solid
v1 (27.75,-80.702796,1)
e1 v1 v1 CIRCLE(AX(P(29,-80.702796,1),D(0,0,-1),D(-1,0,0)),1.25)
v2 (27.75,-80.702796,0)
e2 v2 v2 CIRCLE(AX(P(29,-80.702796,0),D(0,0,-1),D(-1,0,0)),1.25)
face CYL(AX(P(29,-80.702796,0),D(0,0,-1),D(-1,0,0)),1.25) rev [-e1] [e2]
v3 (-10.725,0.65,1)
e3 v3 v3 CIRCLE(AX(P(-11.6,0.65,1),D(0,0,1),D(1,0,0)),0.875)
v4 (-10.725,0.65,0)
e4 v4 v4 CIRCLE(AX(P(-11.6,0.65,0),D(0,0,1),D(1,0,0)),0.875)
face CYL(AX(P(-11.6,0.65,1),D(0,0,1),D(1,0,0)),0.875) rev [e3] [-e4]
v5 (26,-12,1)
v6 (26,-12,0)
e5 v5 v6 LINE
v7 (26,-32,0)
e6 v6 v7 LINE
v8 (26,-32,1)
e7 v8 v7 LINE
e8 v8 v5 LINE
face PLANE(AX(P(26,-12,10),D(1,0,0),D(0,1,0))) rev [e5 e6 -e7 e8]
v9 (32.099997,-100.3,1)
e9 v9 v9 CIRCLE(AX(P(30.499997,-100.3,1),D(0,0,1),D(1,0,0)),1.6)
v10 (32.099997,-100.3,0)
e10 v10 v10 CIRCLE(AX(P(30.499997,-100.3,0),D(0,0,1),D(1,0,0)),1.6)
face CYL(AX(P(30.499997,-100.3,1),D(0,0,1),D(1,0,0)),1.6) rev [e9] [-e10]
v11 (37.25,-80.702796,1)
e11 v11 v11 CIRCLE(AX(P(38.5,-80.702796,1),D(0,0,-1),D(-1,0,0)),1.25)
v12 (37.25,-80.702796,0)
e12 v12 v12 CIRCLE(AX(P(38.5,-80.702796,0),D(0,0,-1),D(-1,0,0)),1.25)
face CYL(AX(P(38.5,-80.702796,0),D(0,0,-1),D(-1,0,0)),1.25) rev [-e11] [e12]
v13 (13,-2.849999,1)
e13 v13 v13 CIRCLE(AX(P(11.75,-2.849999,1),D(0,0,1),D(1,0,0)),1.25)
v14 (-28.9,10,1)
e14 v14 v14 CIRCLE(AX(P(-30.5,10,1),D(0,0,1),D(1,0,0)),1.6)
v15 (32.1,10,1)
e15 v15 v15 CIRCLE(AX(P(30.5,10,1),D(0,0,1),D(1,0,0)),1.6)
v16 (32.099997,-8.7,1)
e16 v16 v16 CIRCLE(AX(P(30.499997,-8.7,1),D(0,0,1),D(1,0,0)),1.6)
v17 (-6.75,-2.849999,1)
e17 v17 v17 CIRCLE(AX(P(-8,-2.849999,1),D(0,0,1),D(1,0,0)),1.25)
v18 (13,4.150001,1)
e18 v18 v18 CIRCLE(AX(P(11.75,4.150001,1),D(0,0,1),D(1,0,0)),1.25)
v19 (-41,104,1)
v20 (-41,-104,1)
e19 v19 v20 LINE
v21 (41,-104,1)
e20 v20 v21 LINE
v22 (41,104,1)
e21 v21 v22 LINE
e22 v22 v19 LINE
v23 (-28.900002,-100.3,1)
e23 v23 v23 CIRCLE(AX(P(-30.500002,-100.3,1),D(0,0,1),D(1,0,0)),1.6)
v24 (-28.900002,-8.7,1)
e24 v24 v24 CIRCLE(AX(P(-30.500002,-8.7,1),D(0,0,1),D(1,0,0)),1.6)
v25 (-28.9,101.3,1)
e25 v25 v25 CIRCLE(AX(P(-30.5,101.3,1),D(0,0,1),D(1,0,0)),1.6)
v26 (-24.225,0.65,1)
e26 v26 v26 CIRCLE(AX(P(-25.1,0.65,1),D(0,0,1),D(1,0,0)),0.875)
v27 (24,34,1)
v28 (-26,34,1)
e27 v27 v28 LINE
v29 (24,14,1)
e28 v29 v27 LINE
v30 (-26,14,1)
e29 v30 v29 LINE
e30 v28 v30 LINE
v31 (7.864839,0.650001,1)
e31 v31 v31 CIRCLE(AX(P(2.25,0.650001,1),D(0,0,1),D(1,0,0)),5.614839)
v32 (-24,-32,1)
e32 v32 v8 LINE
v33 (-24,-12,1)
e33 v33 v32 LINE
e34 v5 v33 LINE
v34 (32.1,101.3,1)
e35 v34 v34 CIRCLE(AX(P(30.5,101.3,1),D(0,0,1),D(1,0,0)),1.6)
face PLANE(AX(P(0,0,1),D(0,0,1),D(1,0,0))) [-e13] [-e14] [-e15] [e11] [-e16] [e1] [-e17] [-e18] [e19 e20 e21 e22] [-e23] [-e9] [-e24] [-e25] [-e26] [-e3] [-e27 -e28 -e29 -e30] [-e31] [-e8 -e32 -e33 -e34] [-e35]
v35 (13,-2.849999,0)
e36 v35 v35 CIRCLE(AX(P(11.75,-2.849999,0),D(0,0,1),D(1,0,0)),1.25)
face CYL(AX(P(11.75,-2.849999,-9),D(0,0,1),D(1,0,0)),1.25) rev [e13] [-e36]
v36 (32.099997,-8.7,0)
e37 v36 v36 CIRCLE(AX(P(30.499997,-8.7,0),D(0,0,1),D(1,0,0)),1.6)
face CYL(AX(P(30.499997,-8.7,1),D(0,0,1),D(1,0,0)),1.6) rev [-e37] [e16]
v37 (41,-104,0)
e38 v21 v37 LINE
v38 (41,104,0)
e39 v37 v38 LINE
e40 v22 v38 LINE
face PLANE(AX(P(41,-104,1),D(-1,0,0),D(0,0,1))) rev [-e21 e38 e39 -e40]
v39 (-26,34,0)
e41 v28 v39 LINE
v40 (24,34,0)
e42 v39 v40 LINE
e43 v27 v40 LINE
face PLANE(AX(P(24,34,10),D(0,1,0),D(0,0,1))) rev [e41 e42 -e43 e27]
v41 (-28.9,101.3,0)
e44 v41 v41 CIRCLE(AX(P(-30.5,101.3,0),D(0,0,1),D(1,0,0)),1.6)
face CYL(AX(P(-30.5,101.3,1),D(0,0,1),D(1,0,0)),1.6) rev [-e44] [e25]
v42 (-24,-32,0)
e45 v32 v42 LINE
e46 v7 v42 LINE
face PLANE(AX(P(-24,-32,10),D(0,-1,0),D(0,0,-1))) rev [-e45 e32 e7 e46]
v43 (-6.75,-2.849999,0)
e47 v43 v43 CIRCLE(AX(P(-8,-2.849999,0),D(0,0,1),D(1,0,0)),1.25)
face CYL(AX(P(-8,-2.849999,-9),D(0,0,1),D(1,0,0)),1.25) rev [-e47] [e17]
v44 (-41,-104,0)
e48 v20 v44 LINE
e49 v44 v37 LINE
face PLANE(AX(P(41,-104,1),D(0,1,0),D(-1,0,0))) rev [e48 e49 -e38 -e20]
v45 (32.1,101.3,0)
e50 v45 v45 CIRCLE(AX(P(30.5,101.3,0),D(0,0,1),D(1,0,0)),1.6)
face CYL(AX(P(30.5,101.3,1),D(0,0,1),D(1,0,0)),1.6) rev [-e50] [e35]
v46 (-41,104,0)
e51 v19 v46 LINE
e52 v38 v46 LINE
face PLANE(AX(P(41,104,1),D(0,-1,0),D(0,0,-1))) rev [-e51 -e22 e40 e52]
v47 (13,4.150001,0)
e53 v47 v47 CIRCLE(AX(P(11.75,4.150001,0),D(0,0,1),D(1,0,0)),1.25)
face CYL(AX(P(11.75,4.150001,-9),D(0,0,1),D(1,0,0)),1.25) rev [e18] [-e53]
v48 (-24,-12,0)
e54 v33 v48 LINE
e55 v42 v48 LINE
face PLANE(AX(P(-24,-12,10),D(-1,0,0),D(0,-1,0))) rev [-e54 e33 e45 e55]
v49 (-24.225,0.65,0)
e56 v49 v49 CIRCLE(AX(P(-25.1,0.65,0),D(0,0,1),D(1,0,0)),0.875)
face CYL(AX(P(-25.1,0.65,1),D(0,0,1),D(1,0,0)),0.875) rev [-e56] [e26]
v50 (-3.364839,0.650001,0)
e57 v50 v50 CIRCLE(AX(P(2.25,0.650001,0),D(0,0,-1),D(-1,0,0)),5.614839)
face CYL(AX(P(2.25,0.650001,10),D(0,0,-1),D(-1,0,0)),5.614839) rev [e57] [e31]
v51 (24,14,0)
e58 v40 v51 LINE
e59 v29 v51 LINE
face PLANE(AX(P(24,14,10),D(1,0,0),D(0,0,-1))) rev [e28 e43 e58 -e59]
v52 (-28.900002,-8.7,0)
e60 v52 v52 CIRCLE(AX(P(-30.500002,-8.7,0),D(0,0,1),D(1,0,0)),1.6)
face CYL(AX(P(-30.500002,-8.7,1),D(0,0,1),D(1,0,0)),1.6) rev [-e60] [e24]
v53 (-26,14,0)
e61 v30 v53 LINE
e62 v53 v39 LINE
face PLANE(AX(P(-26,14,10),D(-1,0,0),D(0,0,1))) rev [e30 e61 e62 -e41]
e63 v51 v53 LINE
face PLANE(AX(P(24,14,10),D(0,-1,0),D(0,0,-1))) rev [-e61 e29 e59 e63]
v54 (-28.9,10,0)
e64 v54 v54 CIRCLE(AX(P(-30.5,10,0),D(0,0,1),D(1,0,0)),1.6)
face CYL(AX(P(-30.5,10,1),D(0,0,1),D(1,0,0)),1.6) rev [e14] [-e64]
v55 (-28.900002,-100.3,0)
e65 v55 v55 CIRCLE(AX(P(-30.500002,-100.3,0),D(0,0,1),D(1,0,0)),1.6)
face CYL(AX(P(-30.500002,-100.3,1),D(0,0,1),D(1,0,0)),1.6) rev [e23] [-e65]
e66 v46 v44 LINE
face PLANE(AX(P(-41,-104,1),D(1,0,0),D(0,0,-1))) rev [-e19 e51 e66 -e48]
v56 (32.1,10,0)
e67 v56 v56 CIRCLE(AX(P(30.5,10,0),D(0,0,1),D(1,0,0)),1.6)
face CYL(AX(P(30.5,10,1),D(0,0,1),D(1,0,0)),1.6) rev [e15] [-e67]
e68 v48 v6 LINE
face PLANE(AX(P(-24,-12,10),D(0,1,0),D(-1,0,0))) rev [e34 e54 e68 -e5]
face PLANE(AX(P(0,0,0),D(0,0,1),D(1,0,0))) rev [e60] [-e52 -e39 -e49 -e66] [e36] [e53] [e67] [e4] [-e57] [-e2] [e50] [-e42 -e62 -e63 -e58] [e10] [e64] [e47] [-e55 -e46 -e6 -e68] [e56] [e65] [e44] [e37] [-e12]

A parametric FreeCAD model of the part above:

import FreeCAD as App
import Part
import Sketcher
from FreeCAD import Vector


def add_polygon(sketch, points):
    """Adds a closed chain of lines whose ends are joined by coincident constraints."""
    first, n = sketch.GeometryCount, len(points)
    for a, b in zip(points, points[1:] + points[:1]):
        sketch.addGeometry(Part.LineSegment(App.Vector(*a, 0), App.Vector(*b, 0)), False)
    for i in range(n):
        sketch.addConstraint(Sketcher.Constraint("Coincident", first + i, 2, first + (i + 1) % n, 1))

doc = App.newDocument("Part")
body = doc.addObject("PartDesign::Body", "Body")

sketch1 = body.newObject("Sketcher::SketchObject", "Sketch")
sketch1.AttachmentSupport = (doc.getObject("XY_Plane"), [""])
sketch1.MapMode = "FlatFace"
add_polygon(sketch1, [(-41, 104), (-41, -104), (41, -104), (41, 104)])
sketch1.addConstraint([
    Sketcher.Constraint("Vertical", 0),
    Sketcher.Constraint("Horizontal", 1),
    Sketcher.Constraint("Vertical", 2),
    Sketcher.Constraint("Horizontal", 3),
    Sketcher.Constraint("Symmetric", 0, 2, 2, 2, -1, 1),
    Sketcher.Constraint("DistanceX", 1, 1, 1, 2, 82.0),
    Sketcher.Constraint("DistanceY", 0, 2, 0, 1, 208.0),
])
pad1 = body.newObject("PartDesign::Pad", "Pad")
pad1.Profile = sketch1
pad1.Length = 1

sketch2 = body.newObject("Sketcher::SketchObject", "Sketch001")
sketch2.AttachmentSupport = (doc.getObject("XY_Plane"), [""])
sketch2.MapMode = "FlatFace"
sketch2.AttachmentOffset = App.Placement(Vector(0, 0, 1), App.Rotation())
sketch2.addGeometry([
    Part.Circle(Vector(-30.5, 10, 0), Vector(0, 0, 1), 1.6),
    Part.Circle(Vector(30.5, 10, 0), Vector(0, 0, 1), 1.6),
    Part.Circle(Vector(30.499997, -100.3, 0), Vector(0, 0, 1), 1.6),
    Part.Circle(Vector(-30.500002, -100.3, 0), Vector(0, 0, 1), 1.6),
    Part.Circle(Vector(-30.5, 101.3, 0), Vector(0, 0, 1), 1.6),
    Part.Circle(Vector(30.5, 101.3, 0), Vector(0, 0, 1), 1.6),
    Part.Circle(Vector(30.499997, -8.7, 0), Vector(0, 0, 1), 1.6),
    Part.Circle(Vector(30.644997, -118.559803, 0), Vector(0, 0, 1), 1.6),
    Part.Circle(Vector(-30.500002, -8.7, 0), Vector(0, 0, 1), 1.6),
], False)
sketch2.addConstraint([
    Sketcher.Constraint("Equal", 0, 1),
    Sketcher.Constraint("Equal", 1, 2),
    Sketcher.Constraint("Equal", 2, 3),
    Sketcher.Constraint("Equal", 3, 4),
    Sketcher.Constraint("Equal", 4, 5),
    Sketcher.Constraint("Equal", 5, 6),
    Sketcher.Constraint("Equal", 6, 7),
    Sketcher.Constraint("Equal", 7, 8),
    Sketcher.Constraint("Symmetric", 0, 3, 1, 3, -2),
    Sketcher.Constraint("Symmetric", 2, 3, 3, 3, -2),
    Sketcher.Constraint("Symmetric", 4, 3, 5, 3, -2),
    Sketcher.Constraint("Symmetric", 6, 3, 8, 3, -2),
    Sketcher.Constraint("Vertical", 0, 3, 4, 3),
    Sketcher.Constraint("Vertical", 2, 3, 6, 3),
    Sketcher.Constraint("Diameter", 0, 3.2),
    Sketcher.Constraint("DistanceY", -1, 1, 0, 3, 10.0),
    Sketcher.Constraint("DistanceX", 0, 3, 1, 3, 61.0),
    Sketcher.Constraint("DistanceX", 3, 3, 2, 3, 61.0),
    Sketcher.Constraint("DistanceY", 6, 3, 5, 3, 110.0),
    Sketcher.Constraint("DistanceY", 2, 3, -1, 1, 100.3),
    Sketcher.Constraint("DistanceY", -1, 1, 4, 3, 101.3),
    Sketcher.Constraint("DistanceX", 2, 3, 7, 3, 0.144999),
    Sketcher.Constraint("DistanceY", 7, 3, -1, 1, 118.559803),
])
doc.recompute()
hole = body.newObject("PartDesign::Hole", "Hole")
hole.Profile = sketch2
hole.ThreadType = "None"
hole.Diameter = 3.2
hole.DepthType = "Dimension"
hole.Depth = 1
hole.DrillPoint = "Flat"

sketch3 = body.newObject("Sketcher::SketchObject", "Sketch002")
sketch3.AttachmentSupport = (doc.getObject("XY_Plane"), [""])
sketch3.MapMode = "FlatFace"
add_polygon(sketch3, [(26, -12), (26, -32), (-24, -32), (-24, -12)])
add_polygon(sketch3, [(24, 34), (24, 14), (-26, 14), (-26, 34)])
sketch3.addConstraint([
    Sketcher.Constraint("Vertical", 0),
    Sketcher.Constraint("Horizontal", 1),
    Sketcher.Constraint("Vertical", 2),
    Sketcher.Constraint("Horizontal", 3),
    Sketcher.Constraint("Vertical", 4),
    Sketcher.Constraint("Horizontal", 5),
    Sketcher.Constraint("Vertical", 6),
    Sketcher.Constraint("Horizontal", 7),
    Sketcher.Constraint("Equal", 3, 5),
    Sketcher.Constraint("Equal", 2, 4),
    Sketcher.Constraint("DistanceX", 1, 2, 1, 1, 50.0),
    Sketcher.Constraint("DistanceY", 0, 2, 0, 1, 20.0),
    Sketcher.Constraint("DistanceX", -1, 1, 0, 2, 26.0),
    Sketcher.Constraint("DistanceY", 0, 2, -1, 1, 32.0),
    Sketcher.Constraint("DistanceX", -1, 1, 4, 2, 24.0),
    Sketcher.Constraint("DistanceY", -1, 1, 4, 2, 14.0),
])
pocket1 = body.newObject("PartDesign::Pocket", "Pocket")
pocket1.Profile = sketch3
pocket1.Length = 10
pocket1.Reversed = True

sketch4 = body.newObject("Sketcher::SketchObject", "Sketch003")
sketch4.AttachmentSupport = (doc.getObject("XY_Plane"), [""])
sketch4.MapMode = "FlatFace"
sketch4.addGeometry([
    Part.Circle(Vector(29, -80.702796, 0), Vector(0, 0, 1), 1.25),
    Part.Circle(Vector(38.5, -80.702796, 0), Vector(0, 0, 1), 1.25),
], False)
sketch4.addConstraint([
    Sketcher.Constraint("Equal", 0, 1),
    Sketcher.Constraint("Horizontal", 0, 3, 1, 3),
    Sketcher.Constraint("Diameter", 0, 2.5),
    Sketcher.Constraint("DistanceX", -1, 1, 0, 3, 29.0),
    Sketcher.Constraint("DistanceX", -1, 1, 1, 3, 38.5),
    Sketcher.Constraint("DistanceY", 0, 3, -1, 1, 80.702796),
])
doc.recompute()
hole2 = body.newObject("PartDesign::Hole", "Hole001")
hole2.Profile = sketch4
hole2.ThreadType = "None"
hole2.Diameter = 2.5
hole2.DepthType = "ThroughAll"
hole2.Reversed = True

sketch5 = body.newObject("Sketcher::SketchObject", "Sketch004")
sketch5.AttachmentSupport = (doc.getObject("XY_Plane"), [""])
sketch5.MapMode = "FlatFace"
sketch5.AttachmentOffset = App.Placement(Vector(0, 0, 1), App.Rotation())
sketch5.addGeometry([
    Part.Circle(Vector(-25.1, 0.65, 0), Vector(0, 0, 1), 0.875),
    Part.Circle(Vector(-11.6, 0.65, 0), Vector(0, 0, 1), 0.875),
], False)
sketch5.addConstraint([
    Sketcher.Constraint("Equal", 0, 1),
    Sketcher.Constraint("Horizontal", 0, 3, 1, 3),
    Sketcher.Constraint("Diameter", 0, 1.75),
    Sketcher.Constraint("DistanceX", 0, 3, -1, 1, 25.1),
    Sketcher.Constraint("DistanceX", 1, 3, -1, 1, 11.6),
    Sketcher.Constraint("DistanceY", -1, 1, 0, 3, 0.65),
])
doc.recompute()
hole3 = body.newObject("PartDesign::Hole", "Hole002")
hole3.Profile = sketch5
hole3.ThreadType = "None"
hole3.Diameter = 1.75
hole3.DepthType = "ThroughAll"

sketch6 = body.newObject("Sketcher::SketchObject", "Sketch005")
sketch6.AttachmentSupport = (doc.getObject("XY_Plane"), [""])
sketch6.MapMode = "FlatFace"
sketch6.AttachmentOffset = App.Placement(Vector(0, 0, 1), App.Rotation())
sketch6.addGeometry([
    Part.Circle(Vector(-8, -2.849999, 0), Vector(0, 0, 1), 1.25),
    Part.Circle(Vector(11.75, -2.849999, 0), Vector(0, 0, 1), 1.25),
    Part.Circle(Vector(11.75, 4.150001, 0), Vector(0, 0, 1), 1.25),
], False)
sketch6.addConstraint([
    Sketcher.Constraint("Equal", 0, 1),
    Sketcher.Constraint("Equal", 1, 2),
    Sketcher.Constraint("Horizontal", 0, 3, 1, 3),
    Sketcher.Constraint("Vertical", 1, 3, 2, 3),
    Sketcher.Constraint("Diameter", 0, 2.5),
    Sketcher.Constraint("DistanceX", 0, 3, -1, 1, 8.0),
    Sketcher.Constraint("DistanceY", 1, 3, 2, 3, 7.0),
    Sketcher.Constraint("DistanceY", 0, 3, -1, 1, 2.849999),
    Sketcher.Constraint("DistanceX", -1, 1, 1, 3, 11.75),
])
pocket2 = body.newObject("PartDesign::Pocket", "Pocket001")
pocket2.Profile = sketch6
pocket2.Length = 10

sketch7 = body.newObject("Sketcher::SketchObject", "Sketch006")
sketch7.AttachmentSupport = (doc.getObject("XY_Plane"), [""])
sketch7.MapMode = "FlatFace"
sketch7.addGeometry(Part.Circle(Vector(2.25, 0.650001, 0), Vector(0, 0, 1), 5.614839), False)
sketch7.addConstraint([
    Sketcher.Constraint("DistanceX", -1, 1, 0, 3, 2.25),
    Sketcher.Constraint("DistanceY", -1, 1, 0, 3, 0.650001),
    Sketcher.Constraint("Diameter", 0, 11.229678),
])
pocket3 = body.newObject("PartDesign::Pocket", "Pocket002")
pocket3.Profile = sketch7
pocket3.Length = 10
pocket3.Reversed = True

doc.recompute()
